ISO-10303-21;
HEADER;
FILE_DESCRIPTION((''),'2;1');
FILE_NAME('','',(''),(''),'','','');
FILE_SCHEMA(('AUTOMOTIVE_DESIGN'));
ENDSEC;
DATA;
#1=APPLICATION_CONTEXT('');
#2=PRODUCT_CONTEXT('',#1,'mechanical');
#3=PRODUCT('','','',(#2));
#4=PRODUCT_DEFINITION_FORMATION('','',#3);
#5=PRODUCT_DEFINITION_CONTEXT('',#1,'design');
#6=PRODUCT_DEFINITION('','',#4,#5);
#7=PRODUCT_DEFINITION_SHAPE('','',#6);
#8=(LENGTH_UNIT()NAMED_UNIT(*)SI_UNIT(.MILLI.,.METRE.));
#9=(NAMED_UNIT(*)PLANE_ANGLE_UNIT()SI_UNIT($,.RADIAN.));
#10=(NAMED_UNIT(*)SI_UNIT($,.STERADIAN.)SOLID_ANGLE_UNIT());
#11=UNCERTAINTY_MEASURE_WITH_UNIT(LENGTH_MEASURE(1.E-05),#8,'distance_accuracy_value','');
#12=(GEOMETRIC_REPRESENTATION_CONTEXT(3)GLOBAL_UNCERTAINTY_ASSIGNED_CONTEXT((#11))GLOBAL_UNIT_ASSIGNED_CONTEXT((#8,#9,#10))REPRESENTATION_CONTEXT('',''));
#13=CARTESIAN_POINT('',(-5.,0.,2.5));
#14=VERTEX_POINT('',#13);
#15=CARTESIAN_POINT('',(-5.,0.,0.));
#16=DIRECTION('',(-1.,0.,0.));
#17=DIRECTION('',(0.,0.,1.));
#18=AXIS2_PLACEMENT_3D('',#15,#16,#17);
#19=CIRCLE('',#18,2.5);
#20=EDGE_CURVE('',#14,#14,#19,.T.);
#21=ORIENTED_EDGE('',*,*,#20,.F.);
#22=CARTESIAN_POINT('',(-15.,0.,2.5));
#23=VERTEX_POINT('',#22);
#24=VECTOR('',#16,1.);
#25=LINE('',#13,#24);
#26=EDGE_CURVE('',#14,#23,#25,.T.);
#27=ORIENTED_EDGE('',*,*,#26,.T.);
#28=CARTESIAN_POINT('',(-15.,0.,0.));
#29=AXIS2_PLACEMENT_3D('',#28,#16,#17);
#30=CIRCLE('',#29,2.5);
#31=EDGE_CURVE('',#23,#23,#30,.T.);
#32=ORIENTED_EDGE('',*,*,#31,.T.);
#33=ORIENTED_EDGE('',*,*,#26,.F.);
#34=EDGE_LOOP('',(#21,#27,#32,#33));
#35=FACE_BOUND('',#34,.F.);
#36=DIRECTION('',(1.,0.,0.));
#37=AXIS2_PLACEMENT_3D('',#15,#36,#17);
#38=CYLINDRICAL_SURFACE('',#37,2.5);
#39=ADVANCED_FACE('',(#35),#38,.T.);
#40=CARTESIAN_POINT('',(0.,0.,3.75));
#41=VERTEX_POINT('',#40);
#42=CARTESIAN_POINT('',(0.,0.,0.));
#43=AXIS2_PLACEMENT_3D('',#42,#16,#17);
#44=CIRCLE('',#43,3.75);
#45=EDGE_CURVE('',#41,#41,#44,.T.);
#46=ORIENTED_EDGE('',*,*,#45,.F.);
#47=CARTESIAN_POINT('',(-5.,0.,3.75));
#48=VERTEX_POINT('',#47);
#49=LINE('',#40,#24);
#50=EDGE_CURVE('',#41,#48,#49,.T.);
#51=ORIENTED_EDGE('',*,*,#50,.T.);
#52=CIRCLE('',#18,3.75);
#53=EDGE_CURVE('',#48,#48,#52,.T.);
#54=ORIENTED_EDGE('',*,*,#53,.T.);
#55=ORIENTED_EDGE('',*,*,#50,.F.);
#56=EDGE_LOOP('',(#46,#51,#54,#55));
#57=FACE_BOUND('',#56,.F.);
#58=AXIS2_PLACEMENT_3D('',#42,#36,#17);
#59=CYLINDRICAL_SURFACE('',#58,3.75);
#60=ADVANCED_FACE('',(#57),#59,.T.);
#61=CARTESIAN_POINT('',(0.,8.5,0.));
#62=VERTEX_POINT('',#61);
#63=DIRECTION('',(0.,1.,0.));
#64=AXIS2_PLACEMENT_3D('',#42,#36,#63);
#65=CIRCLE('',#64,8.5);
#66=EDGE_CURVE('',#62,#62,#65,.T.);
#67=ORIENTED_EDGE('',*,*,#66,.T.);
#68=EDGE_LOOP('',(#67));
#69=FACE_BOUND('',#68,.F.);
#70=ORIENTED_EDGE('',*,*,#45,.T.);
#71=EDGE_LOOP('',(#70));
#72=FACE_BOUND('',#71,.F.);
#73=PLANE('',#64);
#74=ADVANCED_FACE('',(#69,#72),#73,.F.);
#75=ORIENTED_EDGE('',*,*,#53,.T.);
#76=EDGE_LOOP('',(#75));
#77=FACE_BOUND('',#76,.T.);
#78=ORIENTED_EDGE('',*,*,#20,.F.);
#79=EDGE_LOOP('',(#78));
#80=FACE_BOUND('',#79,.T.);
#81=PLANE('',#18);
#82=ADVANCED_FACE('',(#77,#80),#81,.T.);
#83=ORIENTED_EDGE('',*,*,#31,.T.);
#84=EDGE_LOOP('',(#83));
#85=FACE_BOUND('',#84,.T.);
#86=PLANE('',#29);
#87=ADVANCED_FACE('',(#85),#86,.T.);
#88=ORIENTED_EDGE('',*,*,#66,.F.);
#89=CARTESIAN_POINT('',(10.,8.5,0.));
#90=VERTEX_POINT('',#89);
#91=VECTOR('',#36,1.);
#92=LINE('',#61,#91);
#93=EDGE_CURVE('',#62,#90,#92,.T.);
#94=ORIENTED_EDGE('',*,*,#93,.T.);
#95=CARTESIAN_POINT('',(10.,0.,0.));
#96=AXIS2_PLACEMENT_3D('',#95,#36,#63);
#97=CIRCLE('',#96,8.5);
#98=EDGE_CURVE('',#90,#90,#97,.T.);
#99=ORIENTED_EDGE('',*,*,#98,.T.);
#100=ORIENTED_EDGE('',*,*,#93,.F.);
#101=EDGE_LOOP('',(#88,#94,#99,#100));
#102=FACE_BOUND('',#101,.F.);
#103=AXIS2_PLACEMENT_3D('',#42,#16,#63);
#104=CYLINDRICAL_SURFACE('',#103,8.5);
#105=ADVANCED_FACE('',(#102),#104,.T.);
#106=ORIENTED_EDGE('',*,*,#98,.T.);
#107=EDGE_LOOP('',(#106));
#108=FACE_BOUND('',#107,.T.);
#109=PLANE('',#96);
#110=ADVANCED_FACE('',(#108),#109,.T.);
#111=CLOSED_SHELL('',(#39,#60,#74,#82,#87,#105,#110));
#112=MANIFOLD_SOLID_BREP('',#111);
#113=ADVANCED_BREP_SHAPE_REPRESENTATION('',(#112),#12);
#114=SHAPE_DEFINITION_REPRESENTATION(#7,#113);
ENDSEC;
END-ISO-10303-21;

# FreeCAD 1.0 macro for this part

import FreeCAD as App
import Part
import Sketcher

V = App.Vector
Q = App.Units.Quantity

doc = App.newDocument("Part")
params = doc.addObject("Spreadsheet::Sheet", "Params")
for row, (alias, value) in enumerate([
    ("sketch1_diameter", "17 mm"),
    ("pad1_length", "10 mm"),
    ("sketch2_diameter", "7.5 mm"),
    ("pad2_length", "5 mm"),
    ("sketch3_diameter", "5 mm"),
    ("pad3_length", "10 mm"),
], start=1):
    params.set(f"A{row}", alias)
    params.set(f"B{row}", "=" + value)
    params.setAlias(f"B{row}", alias)

body = doc.addObject("PartDesign::Body", "Body")

# Sketch on YZ plane
sketch1 = body.newObject("Sketcher::SketchObject", "Sketch")
sketch1.AttachmentSupport = (doc.getObject("YZ_Plane"), [""])
sketch1.MapMode = "FlatFace"
sketch1.addGeometry(Part.Circle(V(0, 0, 0), V(0, 0, 1), 8), False)
sketch1.addConstraint(Sketcher.Constraint("Coincident", 0, 3, -1, 1))
sketch1.addConstraint(Sketcher.Constraint("Diameter", 0, Q("17 mm")))
sketch1.setExpression("Constraints[1]", "Params.sketch1_diameter")
pad1 = body.newObject("PartDesign::Pad", "Pad")
pad1.Profile = sketch1
pad1.setExpression("Length", "Params.pad1_length")

# Sketch on YZ plane
sketch2 = body.newObject("Sketcher::SketchObject", "Sketch001")
sketch2.AttachmentSupport = (doc.getObject("YZ_Plane"), [""])
sketch2.MapMode = "FlatFace"
sketch2.addGeometry(Part.Circle(V(0, 0, 0), V(0, 0, 1), 3.8), False)
sketch2.addConstraint(Sketcher.Constraint("Coincident", 0, 3, -1, 1))
sketch2.addConstraint(Sketcher.Constraint("Diameter", 0, Q("7.5 mm")))
sketch2.setExpression("Constraints[1]", "Params.sketch2_diameter")
pad2 = body.newObject("PartDesign::Pad", "Pad001")
pad2.Profile = sketch2
pad2.setExpression("Length", "Params.pad2_length")
pad2.Reversed = True

# Sketch on YZ plane
sketch3 = body.newObject("Sketcher::SketchObject", "Sketch002")
sketch3.AttachmentSupport = (doc.getObject("YZ_Plane"), [""])
sketch3.MapMode = "FlatFace"
sketch3.AttachmentOffset = App.Placement(V(0, 0, -5), App.Rotation())
sketch3.addGeometry(Part.Circle(V(0, 0, 0), V(0, 0, 1), 2.5), False)
sketch3.addConstraint(Sketcher.Constraint("Coincident", 0, 3, -1, 1))
sketch3.addConstraint(Sketcher.Constraint("Diameter", 0, Q("5 mm")))
sketch3.setExpression("Constraints[1]", "Params.sketch3_diameter")
pad3 = body.newObject("PartDesign::Pad", "Pad002")
pad3.Profile = sketch3
pad3.setExpression("Length", "Params.pad3_length")
pad3.Reversed = True

doc.recompute()
